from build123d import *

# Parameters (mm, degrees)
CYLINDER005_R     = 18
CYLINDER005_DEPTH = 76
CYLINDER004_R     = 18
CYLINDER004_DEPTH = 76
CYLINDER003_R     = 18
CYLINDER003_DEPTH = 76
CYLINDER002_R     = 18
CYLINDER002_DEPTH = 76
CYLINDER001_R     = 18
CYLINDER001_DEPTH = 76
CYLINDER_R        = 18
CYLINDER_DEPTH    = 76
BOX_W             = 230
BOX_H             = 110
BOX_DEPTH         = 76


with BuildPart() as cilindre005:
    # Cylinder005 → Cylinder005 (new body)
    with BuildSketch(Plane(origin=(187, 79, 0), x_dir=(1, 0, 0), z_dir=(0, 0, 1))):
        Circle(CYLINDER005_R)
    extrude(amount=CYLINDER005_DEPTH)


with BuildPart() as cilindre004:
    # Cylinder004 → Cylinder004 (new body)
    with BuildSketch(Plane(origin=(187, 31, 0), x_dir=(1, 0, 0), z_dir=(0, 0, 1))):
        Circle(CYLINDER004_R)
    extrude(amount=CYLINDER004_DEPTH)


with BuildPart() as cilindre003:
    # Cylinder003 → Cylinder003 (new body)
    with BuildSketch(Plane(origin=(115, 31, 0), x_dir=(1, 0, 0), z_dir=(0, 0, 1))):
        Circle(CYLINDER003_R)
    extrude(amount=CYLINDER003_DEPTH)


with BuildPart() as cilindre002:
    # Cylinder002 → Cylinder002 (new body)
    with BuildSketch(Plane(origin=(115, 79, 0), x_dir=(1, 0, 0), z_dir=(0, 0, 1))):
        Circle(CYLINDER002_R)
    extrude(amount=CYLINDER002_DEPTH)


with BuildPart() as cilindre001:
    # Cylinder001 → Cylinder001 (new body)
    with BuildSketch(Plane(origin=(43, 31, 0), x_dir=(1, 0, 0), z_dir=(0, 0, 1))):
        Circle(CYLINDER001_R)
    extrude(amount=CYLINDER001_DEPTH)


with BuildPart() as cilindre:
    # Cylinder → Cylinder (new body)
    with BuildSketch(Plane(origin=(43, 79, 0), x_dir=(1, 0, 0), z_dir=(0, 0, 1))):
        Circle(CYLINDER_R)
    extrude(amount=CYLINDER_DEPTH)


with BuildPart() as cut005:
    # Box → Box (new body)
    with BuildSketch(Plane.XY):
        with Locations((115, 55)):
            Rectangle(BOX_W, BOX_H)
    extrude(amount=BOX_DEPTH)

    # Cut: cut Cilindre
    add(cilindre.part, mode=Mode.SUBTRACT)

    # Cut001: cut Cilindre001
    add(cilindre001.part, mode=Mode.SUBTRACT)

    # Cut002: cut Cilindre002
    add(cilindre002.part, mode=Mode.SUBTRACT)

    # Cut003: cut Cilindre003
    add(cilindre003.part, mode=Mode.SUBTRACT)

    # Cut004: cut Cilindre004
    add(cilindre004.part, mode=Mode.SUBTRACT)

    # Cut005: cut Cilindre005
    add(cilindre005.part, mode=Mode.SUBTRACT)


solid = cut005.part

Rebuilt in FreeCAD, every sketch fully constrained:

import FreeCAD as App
import Part
import Sketcher
from FreeCAD import Vector

doc = App.newDocument("Part")
params = doc.addObject("Spreadsheet::Sheet", "Params")
for row, (alias, value) in enumerate([
    ("sketch1_diameter", "36 mm"),
    ("pad1_length", "76 mm"),
    ("sketch2_diameter", "36 mm"),
    ("pad2_length", "76 mm"),
    ("sketch3_diameter", "36 mm"),
    ("pad3_length", "76 mm"),
    ("sketch4_diameter", "36 mm"),
    ("pad4_length", "76 mm"),
    ("sketch5_diameter", "36 mm"),
    ("pad5_length", "76 mm"),
    ("sketch6_diameter", "36 mm"),
    ("pad6_length", "76 mm"),
    ("sketch7_width", "230 mm"),
    ("sketch7_height", "110 mm"),
    ("pad7_length", "76 mm"),
], start=1):
    params.set(f"A{row}", alias)
    params.set(f"B{row}", "=" + value)
    params.setAlias(f"B{row}", alias)

body = doc.addObject("PartDesign::Body", "Body")

# Sketch on XY plane
sketch1 = body.newObject("Sketcher::SketchObject", "Sketch")
sketch1.AttachmentSupport = (doc.getObject("XY_Plane"), [""])
sketch1.MapMode = "FlatFace"
sketch1.addGeometry(Part.Circle(Vector(187, 79, 0), Vector(0, 0, 1), 18), False)
sketch1.addConstraint([
    Sketcher.Constraint("Diameter", 0, 36.0),
    Sketcher.Constraint("DistanceX", -1, 1, 0, 3, 187.0),
    Sketcher.Constraint("DistanceY", -1, 1, 0, 3, 79.0),
])
sketch1.setExpression("Constraints[0]", "Params.sketch1_diameter")
pad1 = body.newObject("PartDesign::Pad", "Pad")
pad1.Profile = sketch1
pad1.setExpression("Length", "Params.pad1_length")
body2 = doc.addObject("PartDesign::Body", "Body001")

# Sketch on XY plane
sketch2 = body2.newObject("Sketcher::SketchObject", "Sketch001")
sketch2.AttachmentSupport = (doc.getObject("XY_Plane001"), [""])
sketch2.MapMode = "FlatFace"
sketch2.addGeometry(Part.Circle(Vector(187, 31, 0), Vector(0, 0, 1), 18), False)
sketch2.addConstraint([
    Sketcher.Constraint("Diameter", 0, 36.0),
    Sketcher.Constraint("DistanceX", -1, 1, 0, 3, 187.0),
    Sketcher.Constraint("DistanceY", -1, 1, 0, 3, 31.0),
])
sketch2.setExpression("Constraints[0]", "Params.sketch2_diameter")
pad2 = body2.newObject("PartDesign::Pad", "Pad001")
pad2.Profile = sketch2
pad2.setExpression("Length", "Params.pad2_length")
body3 = doc.addObject("PartDesign::Body", "Body002")

# Sketch on XY plane
sketch3 = body3.newObject("Sketcher::SketchObject", "Sketch002")
sketch3.AttachmentSupport = (doc.getObject("XY_Plane002"), [""])
sketch3.MapMode = "FlatFace"
sketch3.addGeometry(Part.Circle(Vector(115, 31, 0), Vector(0, 0, 1), 18), False)
sketch3.addConstraint([
    Sketcher.Constraint("Diameter", 0, 36.0),
    Sketcher.Constraint("DistanceX", -1, 1, 0, 3, 115.0),
    Sketcher.Constraint("DistanceY", -1, 1, 0, 3, 31.0),
])
sketch3.setExpression("Constraints[0]", "Params.sketch3_diameter")
pad3 = body3.newObject("PartDesign::Pad", "Pad002")
pad3.Profile = sketch3
pad3.setExpression("Length", "Params.pad3_length")
body4 = doc.addObject("PartDesign::Body", "Body003")

# Sketch on XY plane
sketch4 = body4.newObject("Sketcher::SketchObject", "Sketch003")
sketch4.AttachmentSupport = (doc.getObject("XY_Plane003"), [""])
sketch4.MapMode = "FlatFace"
sketch4.addGeometry(Part.Circle(Vector(115, 79, 0), Vector(0, 0, 1), 18), False)
sketch4.addConstraint([
    Sketcher.Constraint("Diameter", 0, 36.0),
    Sketcher.Constraint("DistanceX", -1, 1, 0, 3, 115.0),
    Sketcher.Constraint("DistanceY", -1, 1, 0, 3, 79.0),
])
sketch4.setExpression("Constraints[0]", "Params.sketch4_diameter")
pad4 = body4.newObject("PartDesign::Pad", "Pad003")
pad4.Profile = sketch4
pad4.setExpression("Length", "Params.pad4_length")
body5 = doc.addObject("PartDesign::Body", "Body004")

# Sketch on XY plane
sketch5 = body5.newObject("Sketcher::SketchObject", "Sketch004")
sketch5.AttachmentSupport = (doc.getObject("XY_Plane004"), [""])
sketch5.MapMode = "FlatFace"
sketch5.addGeometry(Part.Circle(Vector(43, 31, 0), Vector(0, 0, 1), 18), False)
sketch5.addConstraint([
    Sketcher.Constraint("Diameter", 0, 36.0),
    Sketcher.Constraint("DistanceX", -1, 1, 0, 3, 43.0),
    Sketcher.Constraint("DistanceY", -1, 1, 0, 3, 31.0),
])
sketch5.setExpression("Constraints[0]", "Params.sketch5_diameter")
pad5 = body5.newObject("PartDesign::Pad", "Pad004")
pad5.Profile = sketch5
pad5.setExpression("Length", "Params.pad5_length")
body6 = doc.addObject("PartDesign::Body", "Body005")

# Sketch on XY plane
sketch6 = body6.newObject("Sketcher::SketchObject", "Sketch005")
sketch6.AttachmentSupport = (doc.getObject("XY_Plane005"), [""])
sketch6.MapMode = "FlatFace"
sketch6.addGeometry(Part.Circle(Vector(43, 79, 0), Vector(0, 0, 1), 18), False)
sketch6.addConstraint([
    Sketcher.Constraint("Diameter", 0, 36.0),
    Sketcher.Constraint("DistanceX", -1, 1, 0, 3, 43.0),
    Sketcher.Constraint("DistanceY", -1, 1, 0, 3, 79.0),
])
sketch6.setExpression("Constraints[0]", "Params.sketch6_diameter")
pad6 = body6.newObject("PartDesign::Pad", "Pad005")
pad6.Profile = sketch6
pad6.setExpression("Length", "Params.pad6_length")
body7 = doc.addObject("PartDesign::Body", "Body006")

# Sketch on XY plane
sketch7 = body7.newObject("Sketcher::SketchObject", "Sketch006")
sketch7.AttachmentSupport = (doc.getObject("XY_Plane006"), [""])
sketch7.MapMode = "FlatFace"
sketch7.addGeometry([
    Part.LineSegment(Vector(0, 110, 0), Vector(0, 0, 0)),
    Part.LineSegment(Vector(0, 0, 0), Vector(230, 0, 0)),
    Part.LineSegment(Vector(230, 0, 0), Vector(230, 110, 0)),
    Part.LineSegment(Vector(230, 110, 0), Vector(0, 110, 0)),
], False)
sketch7.addConstraint([
    Sketcher.Constraint("Coincident", 0, 2, 1, 1),
    Sketcher.Constraint("Coincident", 1, 2, 2, 1),
    Sketcher.Constraint("Coincident", 2, 2, 3, 1),
    Sketcher.Constraint("Coincident", 3, 2, 0, 1),
    Sketcher.Constraint("Vertical", 0),
    Sketcher.Constraint("Horizontal", 1),
    Sketcher.Constraint("Vertical", 2),
    Sketcher.Constraint("Horizontal", 3),
    Sketcher.Constraint("Coincident", 0, 2, -1, 1),
    Sketcher.Constraint("DistanceX", 1, 1, 1, 2, 230.0),
    Sketcher.Constraint("DistanceY", 0, 2, 0, 1, 110.0),
])
sketch7.setExpression("Constraints[9]", "Params.sketch7_width")
sketch7.setExpression("Constraints[10]", "Params.sketch7_height")
pad7 = body7.newObject("PartDesign::Pad", "Pad006")
pad7.Profile = sketch7
pad7.setExpression("Length", "Params.pad7_length")
doc.recompute()

boolean = body7.newObject("PartDesign::Boolean", "Boolean")
boolean.Type = "Cut"
boolean.addObjects([body6])
doc.recompute()

boolean2 = body7.newObject("PartDesign::Boolean", "Boolean001")
boolean2.Type = "Cut"
boolean2.addObjects([body5])
doc.recompute()

boolean3 = body7.newObject("PartDesign::Boolean", "Boolean002")
boolean3.Type = "Cut"
boolean3.addObjects([body4])
doc.recompute()

boolean4 = body7.newObject("PartDesign::Boolean", "Boolean003")
boolean4.Type = "Cut"
boolean4.addObjects([body3])
doc.recompute()

boolean5 = body7.newObject("PartDesign::Boolean", "Boolean004")
boolean5.Type = "Cut"
boolean5.addObjects([body2])
doc.recompute()

boolean6 = body7.newObject("PartDesign::Boolean", "Boolean005")
boolean6.Type = "Cut"
boolean6.addObjects([body])

doc.recompute()
